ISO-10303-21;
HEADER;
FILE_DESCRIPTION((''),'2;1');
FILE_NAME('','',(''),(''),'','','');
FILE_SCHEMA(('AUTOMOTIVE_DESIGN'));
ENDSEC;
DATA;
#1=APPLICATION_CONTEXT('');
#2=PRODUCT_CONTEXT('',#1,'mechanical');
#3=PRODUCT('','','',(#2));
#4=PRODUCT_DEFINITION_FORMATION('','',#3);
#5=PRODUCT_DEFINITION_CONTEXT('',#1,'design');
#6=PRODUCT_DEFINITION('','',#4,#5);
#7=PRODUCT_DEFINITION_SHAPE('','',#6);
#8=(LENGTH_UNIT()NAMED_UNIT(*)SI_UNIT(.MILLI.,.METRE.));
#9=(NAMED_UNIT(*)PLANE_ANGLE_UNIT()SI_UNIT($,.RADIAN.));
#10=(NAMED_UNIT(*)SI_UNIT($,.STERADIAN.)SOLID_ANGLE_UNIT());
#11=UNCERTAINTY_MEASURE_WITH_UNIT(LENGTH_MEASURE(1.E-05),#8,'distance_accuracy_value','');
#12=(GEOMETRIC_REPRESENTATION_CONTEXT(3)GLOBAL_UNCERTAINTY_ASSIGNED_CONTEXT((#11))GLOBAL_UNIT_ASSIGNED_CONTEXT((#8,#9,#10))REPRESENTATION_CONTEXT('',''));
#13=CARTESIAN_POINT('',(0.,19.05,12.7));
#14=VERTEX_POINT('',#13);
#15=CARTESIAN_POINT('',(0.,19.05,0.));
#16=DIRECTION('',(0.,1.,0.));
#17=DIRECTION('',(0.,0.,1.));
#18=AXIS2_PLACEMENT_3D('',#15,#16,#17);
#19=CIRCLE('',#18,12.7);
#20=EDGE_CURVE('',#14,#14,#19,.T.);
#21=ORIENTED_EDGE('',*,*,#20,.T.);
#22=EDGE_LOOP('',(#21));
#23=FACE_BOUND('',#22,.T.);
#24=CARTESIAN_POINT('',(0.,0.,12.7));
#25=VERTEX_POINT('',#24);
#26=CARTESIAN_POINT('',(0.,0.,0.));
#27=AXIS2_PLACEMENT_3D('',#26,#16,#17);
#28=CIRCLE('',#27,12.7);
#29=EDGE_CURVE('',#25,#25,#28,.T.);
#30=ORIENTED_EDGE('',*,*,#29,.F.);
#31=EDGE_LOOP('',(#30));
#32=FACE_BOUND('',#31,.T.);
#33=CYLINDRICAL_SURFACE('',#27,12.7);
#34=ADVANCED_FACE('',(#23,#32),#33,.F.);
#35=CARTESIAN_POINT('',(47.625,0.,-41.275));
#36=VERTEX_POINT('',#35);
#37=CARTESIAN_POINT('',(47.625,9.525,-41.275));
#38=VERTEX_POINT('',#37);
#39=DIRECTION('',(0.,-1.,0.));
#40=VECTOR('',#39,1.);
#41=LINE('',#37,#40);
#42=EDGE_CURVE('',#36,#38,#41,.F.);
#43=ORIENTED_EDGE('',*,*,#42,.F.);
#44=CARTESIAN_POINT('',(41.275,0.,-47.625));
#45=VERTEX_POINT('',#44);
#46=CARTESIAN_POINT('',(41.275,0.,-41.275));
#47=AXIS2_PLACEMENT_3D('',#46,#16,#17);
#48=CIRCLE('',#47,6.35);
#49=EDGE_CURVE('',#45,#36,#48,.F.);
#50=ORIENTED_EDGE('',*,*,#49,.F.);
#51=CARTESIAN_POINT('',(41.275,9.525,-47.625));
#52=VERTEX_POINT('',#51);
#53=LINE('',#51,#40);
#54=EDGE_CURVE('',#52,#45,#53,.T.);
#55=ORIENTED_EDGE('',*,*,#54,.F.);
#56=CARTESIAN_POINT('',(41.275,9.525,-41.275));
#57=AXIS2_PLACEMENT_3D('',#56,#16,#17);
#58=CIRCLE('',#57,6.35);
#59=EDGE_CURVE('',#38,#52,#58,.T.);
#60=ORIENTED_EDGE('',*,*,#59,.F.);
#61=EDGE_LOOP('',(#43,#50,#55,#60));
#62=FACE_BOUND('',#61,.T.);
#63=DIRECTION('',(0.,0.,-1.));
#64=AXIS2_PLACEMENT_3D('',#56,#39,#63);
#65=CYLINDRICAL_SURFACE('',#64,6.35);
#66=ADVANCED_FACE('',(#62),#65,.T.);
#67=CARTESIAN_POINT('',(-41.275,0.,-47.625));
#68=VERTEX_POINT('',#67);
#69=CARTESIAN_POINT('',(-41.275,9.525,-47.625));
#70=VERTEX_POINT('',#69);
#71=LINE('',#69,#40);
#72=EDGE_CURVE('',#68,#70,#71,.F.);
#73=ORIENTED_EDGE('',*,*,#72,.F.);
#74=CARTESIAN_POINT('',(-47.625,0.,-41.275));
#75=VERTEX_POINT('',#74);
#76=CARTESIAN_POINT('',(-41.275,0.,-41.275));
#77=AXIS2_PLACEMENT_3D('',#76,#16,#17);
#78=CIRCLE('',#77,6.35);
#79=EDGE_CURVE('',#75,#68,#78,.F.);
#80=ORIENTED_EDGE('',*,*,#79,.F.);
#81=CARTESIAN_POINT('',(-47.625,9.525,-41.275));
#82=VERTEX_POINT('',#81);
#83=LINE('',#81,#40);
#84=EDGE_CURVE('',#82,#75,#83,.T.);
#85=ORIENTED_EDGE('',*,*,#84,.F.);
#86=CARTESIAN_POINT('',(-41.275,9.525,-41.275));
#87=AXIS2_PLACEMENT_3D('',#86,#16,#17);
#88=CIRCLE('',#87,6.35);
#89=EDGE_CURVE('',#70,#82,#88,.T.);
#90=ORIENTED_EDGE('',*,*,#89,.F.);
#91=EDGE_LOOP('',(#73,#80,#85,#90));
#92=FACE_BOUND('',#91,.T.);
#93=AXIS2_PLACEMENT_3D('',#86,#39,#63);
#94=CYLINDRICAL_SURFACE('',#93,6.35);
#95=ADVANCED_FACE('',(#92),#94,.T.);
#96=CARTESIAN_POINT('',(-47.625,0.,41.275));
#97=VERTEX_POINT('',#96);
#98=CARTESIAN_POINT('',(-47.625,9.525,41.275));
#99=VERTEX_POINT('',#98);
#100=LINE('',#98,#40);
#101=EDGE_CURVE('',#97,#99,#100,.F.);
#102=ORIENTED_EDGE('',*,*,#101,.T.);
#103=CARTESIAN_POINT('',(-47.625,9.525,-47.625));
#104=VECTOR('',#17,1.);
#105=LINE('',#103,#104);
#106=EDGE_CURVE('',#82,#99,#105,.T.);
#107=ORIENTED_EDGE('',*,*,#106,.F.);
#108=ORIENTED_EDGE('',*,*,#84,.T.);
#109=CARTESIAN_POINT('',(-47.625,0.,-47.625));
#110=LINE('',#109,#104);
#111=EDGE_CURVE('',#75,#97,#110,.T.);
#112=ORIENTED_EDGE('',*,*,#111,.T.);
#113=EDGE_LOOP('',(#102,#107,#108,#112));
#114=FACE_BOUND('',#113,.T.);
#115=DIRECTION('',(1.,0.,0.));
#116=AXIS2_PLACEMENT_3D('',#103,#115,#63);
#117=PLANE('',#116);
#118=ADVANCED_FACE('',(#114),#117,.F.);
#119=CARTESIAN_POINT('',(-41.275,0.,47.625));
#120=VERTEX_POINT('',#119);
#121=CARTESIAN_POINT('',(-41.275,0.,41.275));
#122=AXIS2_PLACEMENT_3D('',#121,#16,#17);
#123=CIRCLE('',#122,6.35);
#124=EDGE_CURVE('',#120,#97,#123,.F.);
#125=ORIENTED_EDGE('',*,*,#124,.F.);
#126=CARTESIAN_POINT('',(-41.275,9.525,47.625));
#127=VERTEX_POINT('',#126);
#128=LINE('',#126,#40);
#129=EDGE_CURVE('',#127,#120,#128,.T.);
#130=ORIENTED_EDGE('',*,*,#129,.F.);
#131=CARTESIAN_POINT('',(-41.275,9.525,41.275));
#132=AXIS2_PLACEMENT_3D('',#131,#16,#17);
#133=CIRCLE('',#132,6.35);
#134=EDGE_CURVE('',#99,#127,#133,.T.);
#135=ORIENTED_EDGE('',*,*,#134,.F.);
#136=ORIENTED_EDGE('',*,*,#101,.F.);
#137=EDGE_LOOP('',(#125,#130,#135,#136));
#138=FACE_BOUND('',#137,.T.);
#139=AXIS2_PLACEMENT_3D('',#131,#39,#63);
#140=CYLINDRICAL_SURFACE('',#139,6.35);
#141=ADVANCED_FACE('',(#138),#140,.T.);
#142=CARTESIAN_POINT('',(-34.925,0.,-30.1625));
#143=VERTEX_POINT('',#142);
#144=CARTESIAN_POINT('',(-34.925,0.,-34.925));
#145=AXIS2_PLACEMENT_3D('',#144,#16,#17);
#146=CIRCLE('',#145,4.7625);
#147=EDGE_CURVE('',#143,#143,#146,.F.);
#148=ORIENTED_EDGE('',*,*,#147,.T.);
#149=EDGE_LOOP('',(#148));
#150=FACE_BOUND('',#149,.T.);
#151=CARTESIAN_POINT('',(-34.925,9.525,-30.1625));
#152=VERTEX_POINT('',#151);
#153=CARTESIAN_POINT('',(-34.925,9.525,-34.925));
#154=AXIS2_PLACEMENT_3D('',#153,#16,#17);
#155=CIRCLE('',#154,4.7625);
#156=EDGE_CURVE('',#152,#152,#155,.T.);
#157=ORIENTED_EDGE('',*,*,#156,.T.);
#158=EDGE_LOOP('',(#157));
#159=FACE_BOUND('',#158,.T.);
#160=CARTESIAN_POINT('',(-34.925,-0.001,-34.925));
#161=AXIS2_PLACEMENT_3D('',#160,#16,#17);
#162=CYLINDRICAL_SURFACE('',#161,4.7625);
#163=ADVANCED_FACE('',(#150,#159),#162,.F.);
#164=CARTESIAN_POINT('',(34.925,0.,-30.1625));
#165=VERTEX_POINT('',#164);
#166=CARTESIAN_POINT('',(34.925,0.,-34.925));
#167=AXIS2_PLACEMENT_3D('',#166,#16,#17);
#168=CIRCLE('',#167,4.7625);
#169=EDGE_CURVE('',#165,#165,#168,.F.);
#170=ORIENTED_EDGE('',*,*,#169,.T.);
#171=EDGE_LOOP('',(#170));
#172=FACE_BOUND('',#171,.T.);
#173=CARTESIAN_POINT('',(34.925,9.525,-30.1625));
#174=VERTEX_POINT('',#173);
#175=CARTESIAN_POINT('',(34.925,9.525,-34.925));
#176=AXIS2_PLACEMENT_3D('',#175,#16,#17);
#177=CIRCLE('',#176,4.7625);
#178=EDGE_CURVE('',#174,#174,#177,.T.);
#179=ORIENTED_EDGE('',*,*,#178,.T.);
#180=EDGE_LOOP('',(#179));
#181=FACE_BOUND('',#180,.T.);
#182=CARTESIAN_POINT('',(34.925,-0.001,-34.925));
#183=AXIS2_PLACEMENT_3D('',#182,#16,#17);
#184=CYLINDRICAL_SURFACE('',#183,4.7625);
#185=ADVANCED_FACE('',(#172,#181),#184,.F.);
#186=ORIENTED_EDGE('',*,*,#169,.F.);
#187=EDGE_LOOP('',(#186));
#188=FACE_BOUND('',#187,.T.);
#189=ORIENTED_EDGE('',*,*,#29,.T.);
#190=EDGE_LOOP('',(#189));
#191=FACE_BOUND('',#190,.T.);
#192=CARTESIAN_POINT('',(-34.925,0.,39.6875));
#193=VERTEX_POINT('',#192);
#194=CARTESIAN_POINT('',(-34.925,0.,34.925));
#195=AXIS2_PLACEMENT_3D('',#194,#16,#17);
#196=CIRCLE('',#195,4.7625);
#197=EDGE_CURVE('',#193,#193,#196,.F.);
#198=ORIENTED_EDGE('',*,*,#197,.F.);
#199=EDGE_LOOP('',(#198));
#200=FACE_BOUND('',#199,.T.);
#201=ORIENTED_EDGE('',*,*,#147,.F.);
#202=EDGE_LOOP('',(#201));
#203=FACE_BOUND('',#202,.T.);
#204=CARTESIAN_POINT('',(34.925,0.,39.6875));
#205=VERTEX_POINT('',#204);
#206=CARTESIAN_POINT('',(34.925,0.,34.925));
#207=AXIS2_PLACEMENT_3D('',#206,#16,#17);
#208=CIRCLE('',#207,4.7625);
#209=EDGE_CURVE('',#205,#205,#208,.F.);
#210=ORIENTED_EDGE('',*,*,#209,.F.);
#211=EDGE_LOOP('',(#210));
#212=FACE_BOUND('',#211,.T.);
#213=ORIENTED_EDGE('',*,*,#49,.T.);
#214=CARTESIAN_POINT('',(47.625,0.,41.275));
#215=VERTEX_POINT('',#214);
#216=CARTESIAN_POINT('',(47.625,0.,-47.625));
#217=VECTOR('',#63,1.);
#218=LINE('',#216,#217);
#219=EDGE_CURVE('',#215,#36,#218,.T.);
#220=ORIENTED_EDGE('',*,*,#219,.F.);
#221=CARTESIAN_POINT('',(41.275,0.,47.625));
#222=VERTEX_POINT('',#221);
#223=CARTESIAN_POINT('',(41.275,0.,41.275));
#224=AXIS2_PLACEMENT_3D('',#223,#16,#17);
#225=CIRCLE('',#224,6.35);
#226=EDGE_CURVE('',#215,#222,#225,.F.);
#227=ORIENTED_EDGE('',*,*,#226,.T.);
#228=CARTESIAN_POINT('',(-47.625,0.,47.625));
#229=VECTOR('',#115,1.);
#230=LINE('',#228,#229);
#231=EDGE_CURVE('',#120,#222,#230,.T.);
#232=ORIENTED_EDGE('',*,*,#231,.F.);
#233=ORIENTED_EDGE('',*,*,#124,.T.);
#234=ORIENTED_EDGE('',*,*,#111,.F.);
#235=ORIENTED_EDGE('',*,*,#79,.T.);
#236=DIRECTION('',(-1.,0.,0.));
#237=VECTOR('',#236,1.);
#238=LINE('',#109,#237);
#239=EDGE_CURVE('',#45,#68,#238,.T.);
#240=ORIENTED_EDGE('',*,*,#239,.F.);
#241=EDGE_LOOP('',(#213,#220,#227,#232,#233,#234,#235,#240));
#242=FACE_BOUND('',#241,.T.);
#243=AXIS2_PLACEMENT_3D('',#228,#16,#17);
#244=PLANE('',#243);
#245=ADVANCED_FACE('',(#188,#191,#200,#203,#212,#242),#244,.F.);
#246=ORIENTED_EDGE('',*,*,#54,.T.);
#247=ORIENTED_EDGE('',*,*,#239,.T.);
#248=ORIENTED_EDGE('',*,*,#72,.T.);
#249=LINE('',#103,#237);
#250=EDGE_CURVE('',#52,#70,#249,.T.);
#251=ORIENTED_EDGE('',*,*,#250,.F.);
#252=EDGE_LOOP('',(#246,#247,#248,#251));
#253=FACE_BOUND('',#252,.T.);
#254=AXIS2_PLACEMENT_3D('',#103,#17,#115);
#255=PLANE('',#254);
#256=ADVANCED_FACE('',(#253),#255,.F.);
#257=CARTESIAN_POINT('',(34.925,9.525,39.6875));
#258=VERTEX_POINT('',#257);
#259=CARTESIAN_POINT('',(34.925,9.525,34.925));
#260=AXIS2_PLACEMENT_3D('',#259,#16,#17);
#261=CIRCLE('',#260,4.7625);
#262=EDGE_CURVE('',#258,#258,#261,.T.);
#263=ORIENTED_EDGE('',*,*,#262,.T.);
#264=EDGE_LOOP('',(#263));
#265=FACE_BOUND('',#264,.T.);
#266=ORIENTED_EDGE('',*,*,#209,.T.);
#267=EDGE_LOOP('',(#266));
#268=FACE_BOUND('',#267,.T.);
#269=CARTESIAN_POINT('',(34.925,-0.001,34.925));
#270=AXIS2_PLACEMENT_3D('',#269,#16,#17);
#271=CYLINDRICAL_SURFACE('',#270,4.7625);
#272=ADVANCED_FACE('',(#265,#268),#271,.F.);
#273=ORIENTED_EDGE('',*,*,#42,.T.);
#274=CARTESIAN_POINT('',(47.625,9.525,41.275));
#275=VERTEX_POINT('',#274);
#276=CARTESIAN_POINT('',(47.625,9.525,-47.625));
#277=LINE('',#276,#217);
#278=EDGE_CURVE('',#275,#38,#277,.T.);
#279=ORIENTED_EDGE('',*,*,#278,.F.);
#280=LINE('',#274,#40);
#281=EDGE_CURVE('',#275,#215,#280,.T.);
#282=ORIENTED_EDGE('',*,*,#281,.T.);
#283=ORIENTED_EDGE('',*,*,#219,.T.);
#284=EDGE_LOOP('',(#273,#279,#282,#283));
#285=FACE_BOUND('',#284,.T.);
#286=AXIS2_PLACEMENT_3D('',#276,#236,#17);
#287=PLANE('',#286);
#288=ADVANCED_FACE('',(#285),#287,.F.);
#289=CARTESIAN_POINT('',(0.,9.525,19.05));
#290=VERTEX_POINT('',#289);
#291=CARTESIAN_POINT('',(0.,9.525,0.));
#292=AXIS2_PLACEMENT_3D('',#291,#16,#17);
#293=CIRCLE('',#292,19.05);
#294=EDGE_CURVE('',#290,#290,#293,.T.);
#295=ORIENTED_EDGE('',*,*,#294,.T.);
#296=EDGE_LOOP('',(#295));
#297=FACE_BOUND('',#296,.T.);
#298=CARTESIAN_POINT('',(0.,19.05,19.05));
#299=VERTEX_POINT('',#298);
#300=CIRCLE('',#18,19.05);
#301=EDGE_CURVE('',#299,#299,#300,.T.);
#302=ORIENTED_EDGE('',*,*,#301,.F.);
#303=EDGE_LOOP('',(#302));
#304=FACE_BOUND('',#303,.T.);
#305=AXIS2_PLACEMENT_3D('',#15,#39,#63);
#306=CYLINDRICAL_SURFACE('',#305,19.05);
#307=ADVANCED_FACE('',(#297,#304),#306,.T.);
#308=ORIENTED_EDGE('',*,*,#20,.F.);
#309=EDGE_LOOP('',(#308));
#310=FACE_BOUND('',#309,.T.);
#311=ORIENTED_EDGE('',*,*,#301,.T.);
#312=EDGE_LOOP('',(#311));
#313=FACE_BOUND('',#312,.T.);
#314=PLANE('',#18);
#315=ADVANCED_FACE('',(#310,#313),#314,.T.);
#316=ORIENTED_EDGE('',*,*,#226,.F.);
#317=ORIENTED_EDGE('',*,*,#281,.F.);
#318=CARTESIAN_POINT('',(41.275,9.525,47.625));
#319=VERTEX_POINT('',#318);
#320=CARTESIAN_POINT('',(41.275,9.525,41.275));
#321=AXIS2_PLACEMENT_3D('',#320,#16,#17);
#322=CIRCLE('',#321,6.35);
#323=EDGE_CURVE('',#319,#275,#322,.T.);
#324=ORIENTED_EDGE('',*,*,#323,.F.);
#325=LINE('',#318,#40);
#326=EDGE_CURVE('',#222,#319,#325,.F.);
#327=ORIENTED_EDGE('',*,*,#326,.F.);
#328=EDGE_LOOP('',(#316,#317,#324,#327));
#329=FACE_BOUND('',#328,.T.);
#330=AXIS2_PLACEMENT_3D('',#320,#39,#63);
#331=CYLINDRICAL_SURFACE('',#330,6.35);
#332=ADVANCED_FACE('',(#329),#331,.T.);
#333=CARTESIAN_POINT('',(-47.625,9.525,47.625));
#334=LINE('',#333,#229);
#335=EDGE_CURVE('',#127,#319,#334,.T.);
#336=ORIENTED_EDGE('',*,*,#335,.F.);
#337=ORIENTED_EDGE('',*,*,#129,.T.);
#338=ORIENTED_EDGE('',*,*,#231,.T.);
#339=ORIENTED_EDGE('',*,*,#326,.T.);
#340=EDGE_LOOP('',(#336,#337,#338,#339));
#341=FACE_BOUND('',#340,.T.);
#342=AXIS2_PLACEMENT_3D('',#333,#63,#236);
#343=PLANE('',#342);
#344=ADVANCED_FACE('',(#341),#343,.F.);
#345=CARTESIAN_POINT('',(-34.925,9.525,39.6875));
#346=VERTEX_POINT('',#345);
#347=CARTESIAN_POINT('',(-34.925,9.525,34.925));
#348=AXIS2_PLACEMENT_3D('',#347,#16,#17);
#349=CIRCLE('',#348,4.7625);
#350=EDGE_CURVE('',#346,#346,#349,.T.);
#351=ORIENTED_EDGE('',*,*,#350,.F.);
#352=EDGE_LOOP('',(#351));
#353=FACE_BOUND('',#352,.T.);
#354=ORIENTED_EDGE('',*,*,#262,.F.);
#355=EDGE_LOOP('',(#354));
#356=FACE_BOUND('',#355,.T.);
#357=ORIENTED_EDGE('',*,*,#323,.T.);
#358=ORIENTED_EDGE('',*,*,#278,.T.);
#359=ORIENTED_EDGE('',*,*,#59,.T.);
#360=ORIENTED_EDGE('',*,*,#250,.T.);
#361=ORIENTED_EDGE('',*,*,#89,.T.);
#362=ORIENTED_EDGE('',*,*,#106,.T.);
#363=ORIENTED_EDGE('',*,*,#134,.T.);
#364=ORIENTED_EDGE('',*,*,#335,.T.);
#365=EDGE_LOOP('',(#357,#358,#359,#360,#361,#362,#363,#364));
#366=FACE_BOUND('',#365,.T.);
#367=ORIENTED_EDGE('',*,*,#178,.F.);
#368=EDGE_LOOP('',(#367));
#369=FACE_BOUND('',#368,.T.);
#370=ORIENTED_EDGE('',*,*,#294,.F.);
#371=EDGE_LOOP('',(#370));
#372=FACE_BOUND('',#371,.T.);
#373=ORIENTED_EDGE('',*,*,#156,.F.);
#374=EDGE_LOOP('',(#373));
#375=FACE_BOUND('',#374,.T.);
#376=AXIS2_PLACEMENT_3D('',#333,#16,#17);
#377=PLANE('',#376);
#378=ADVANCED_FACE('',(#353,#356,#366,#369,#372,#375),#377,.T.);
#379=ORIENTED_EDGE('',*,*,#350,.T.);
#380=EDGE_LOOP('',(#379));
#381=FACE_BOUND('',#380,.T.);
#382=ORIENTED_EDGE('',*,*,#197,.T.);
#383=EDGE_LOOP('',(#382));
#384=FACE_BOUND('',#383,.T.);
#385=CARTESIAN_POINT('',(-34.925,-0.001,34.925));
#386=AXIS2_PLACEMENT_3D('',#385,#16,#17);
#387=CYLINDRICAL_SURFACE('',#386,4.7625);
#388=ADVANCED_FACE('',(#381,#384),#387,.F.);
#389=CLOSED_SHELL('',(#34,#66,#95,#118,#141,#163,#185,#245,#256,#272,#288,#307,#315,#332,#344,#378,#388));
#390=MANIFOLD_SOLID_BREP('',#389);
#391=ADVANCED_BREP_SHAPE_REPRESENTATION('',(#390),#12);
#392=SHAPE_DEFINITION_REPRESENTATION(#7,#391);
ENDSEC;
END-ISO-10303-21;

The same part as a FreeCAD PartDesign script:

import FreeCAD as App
import Part
import Sketcher
from FreeCAD import Vector
Q = App.Units.Quantity


def edges_at(feature, points):
    """Names of the edges that pass closest to the given points."""
    edges = feature.Shape.Edges
    near = lambda p: min(range(len(edges)), key=lambda i: edges[i].distToShape(Part.Vertex(*p))[0])
    return sorted({f"Edge{near(p) + 1}" for p in points})

doc = App.newDocument("Part")
params = doc.addObject("Spreadsheet::Sheet", "Params")
for row, (alias, value) in enumerate([
    ("sketch1_width", "3.75 in"),
    ("pad1_length", "0.375 in"),
    ("sketch2_diameter", "1.5 in"),
    ("pad2_length", "0.375 in"),
    ("sketch3_diameter", "1 in"),
    ("fillet_radius", "0.25 in"),
    ("sketch4_diameter", "0.375 in"),
    ("sketch5_diameter", "0.375 in"),
    ("sketch6_diameter", "0.375 in"),
    ("sketch7_diameter", "0.375 in"),
], start=1):
    params.set(f"A{row}", alias)
    params.set(f"B{row}", "=" + value)
    params.setAlias(f"B{row}", alias)

body = doc.addObject("PartDesign::Body", "Body")

# Sketch on XZ plane
sketch1 = doc.addObject("Sketcher::SketchObject", "Sketch")
body.addObject(sketch1)
sketch1.AttachmentSupport = (doc.XZ_Plane, [""])
sketch1.MapMode = "FlatFace"
sketch1.addGeometry(Part.LineSegment(Vector(-48, -48, 0), Vector(-48, 48, 0)), False)
sketch1.addGeometry(Part.LineSegment(Vector(-48, 48, 0), Vector(48, 48, 0)), False)
sketch1.addGeometry(Part.LineSegment(Vector(48, 48, 0), Vector(48, -48, 0)), False)
sketch1.addGeometry(Part.LineSegment(Vector(48, -48, 0), Vector(-48, -48, 0)), False)
sketch1.addConstraint(Sketcher.Constraint("Coincident", 0, 2, 1, 1))
sketch1.addConstraint(Sketcher.Constraint("Coincident", 1, 2, 2, 1))
sketch1.addConstraint(Sketcher.Constraint("Coincident", 2, 2, 3, 1))
sketch1.addConstraint(Sketcher.Constraint("Coincident", 3, 2, 0, 1))
sketch1.addConstraint(Sketcher.Constraint("Vertical", 0))
sketch1.addConstraint(Sketcher.Constraint("Horizontal", 1))
sketch1.addConstraint(Sketcher.Constraint("Vertical", 2))
sketch1.addConstraint(Sketcher.Constraint("Horizontal", 3))
sketch1.addConstraint(Sketcher.Constraint("Symmetric", 0, 2, 2, 2, -1, 1))
sketch1.addConstraint(Sketcher.Constraint("Equal", 3, 0))
sketch1.addConstraint(Sketcher.Constraint("DistanceX", 1, 1, 1, 2, Q("3.75 in")))
sketch1.setExpression("Constraints[10]", "Params.sketch1_width")
pad1 = doc.addObject("PartDesign::Pad", "Pad")
body.addObject(pad1)
pad1.Profile = sketch1
pad1.setExpression("Length", "Params.pad1_length")
pad1.Reversed = True

# Sketch on XZ plane
sketch2 = doc.addObject("Sketcher::SketchObject", "Sketch001")
body.addObject(sketch2)
sketch2.AttachmentSupport = (doc.XZ_Plane, [""])
sketch2.MapMode = "FlatFace"
sketch2.AttachmentOffset = App.Placement(Vector(0, 0, -0.375 * 25.4), App.Rotation())
sketch2.addGeometry(Part.Circle(Vector(0, 0, 0), Vector(0, 0, 1), 19), False)
sketch2.addConstraint(Sketcher.Constraint("Coincident", 0, 3, -1, 1))
sketch2.addConstraint(Sketcher.Constraint("Diameter", 0, Q("1.5 in")))
sketch2.setExpression("Constraints[1]", "Params.sketch2_diameter")
pad2 = doc.addObject("PartDesign::Pad", "Pad001")
body.addObject(pad2)
pad2.Profile = sketch2
pad2.setExpression("Length", "Params.pad2_length")
pad2.Reversed = True

# Sketch on XZ plane
sketch3 = doc.addObject("Sketcher::SketchObject", "Sketch002")
body.addObject(sketch3)
sketch3.AttachmentSupport = (doc.XZ_Plane, [""])
sketch3.MapMode = "FlatFace"
sketch3.AttachmentOffset = App.Placement(Vector(0, 0, -0.75 * 25.4), App.Rotation())
sketch3.addGeometry(Part.Circle(Vector(0, 0, 0), Vector(0, 0, 1), 13), False)
sketch3.addConstraint(Sketcher.Constraint("Coincident", 0, 3, -1, 1))
sketch3.addConstraint(Sketcher.Constraint("Diameter", 0, Q("1 in")))
sketch3.setExpression("Constraints[1]", "Params.sketch3_diameter")
pocket1 = doc.addObject("PartDesign::Pocket", "Pocket")
body.addObject(pocket1)
pocket1.Profile = sketch3
pocket1.Type = "ThroughAll"
pocket1.Reversed = True
doc.recompute()

fillet = doc.addObject("PartDesign::Fillet", "Fillet")
body.addObject(fillet)
fillet.Base = (pocket1, edges_at(pocket1, [
    (-47.625, 4.763, -47.625),
    (47.625, 4.763, -47.625),
    (47.625, 4.763, 47.625),
    (-47.625, 4.763, 47.625),
]))
fillet.setExpression("Radius", "Params.fillet_radius")

# Sketch on XZ plane
sketch4 = doc.addObject("Sketcher::SketchObject", "Sketch003")
body.addObject(sketch4)
sketch4.AttachmentSupport = (doc.XZ_Plane, [""])
sketch4.MapMode = "FlatFace"
sketch4.AttachmentOffset = App.Placement(Vector(0, 0, -0.375 * 25.4), App.Rotation())
sketch4.addGeometry(Part.Circle(Vector(34.9, -34.9, 0), Vector(0, 0, 1), 4.8), False)
sketch4.addConstraint(Sketcher.Constraint("Diameter", 0, Q("0.375 in")))
sketch4.addConstraint(Sketcher.Constraint("DistanceX", -1, 1, 0, 3, Q("1.375 in")))
sketch4.addConstraint(Sketcher.Constraint("DistanceY", 0, 3, -1, 1, Q("1.375 in")))
sketch4.setExpression("Constraints[0]", "Params.sketch4_diameter")
pocket2 = doc.addObject("PartDesign::Pocket", "Pocket001")
body.addObject(pocket2)
pocket2.Profile = sketch4
pocket2.Type = "UpToFirst"
pocket2.Reversed = True

# Sketch on XZ plane
sketch5 = doc.addObject("Sketcher::SketchObject", "Sketch004")
body.addObject(sketch5)
sketch5.AttachmentSupport = (doc.XZ_Plane, [""])
sketch5.MapMode = "FlatFace"
sketch5.AttachmentOffset = App.Placement(Vector(0, 0, -0.375 * 25.4), App.Rotation())
sketch5.addGeometry(Part.Circle(Vector(-34.9, -34.9, 0), Vector(0, 0, 1), 4.8), False)
sketch5.addConstraint(Sketcher.Constraint("Diameter", 0, Q("0.375 in")))
sketch5.addConstraint(Sketcher.Constraint("DistanceX", 0, 3, -1, 1, Q("1.375 in")))
sketch5.addConstraint(Sketcher.Constraint("DistanceY", 0, 3, -1, 1, Q("1.375 in")))
sketch5.setExpression("Constraints[0]", "Params.sketch5_diameter")
pocket3 = doc.addObject("PartDesign::Pocket", "Pocket002")
body.addObject(pocket3)
pocket3.Profile = sketch5
pocket3.Type = "UpToFirst"
pocket3.Reversed = True

# Sketch on XZ plane
sketch6 = doc.addObject("Sketcher::SketchObject", "Sketch005")
body.addObject(sketch6)
sketch6.AttachmentSupport = (doc.XZ_Plane, [""])
sketch6.MapMode = "FlatFace"
sketch6.AttachmentOffset = App.Placement(Vector(0, 0, -0.375 * 25.4), App.Rotation())
sketch6.addGeometry(Part.Circle(Vector(-34.9, 34.9, 0), Vector(0, 0, 1), 4.8), False)
sketch6.addConstraint(Sketcher.Constraint("Diameter", 0, Q("0.375 in")))
sketch6.addConstraint(Sketcher.Constraint("DistanceX", 0, 3, -1, 1, Q("1.375 in")))
sketch6.addConstraint(Sketcher.Constraint("DistanceY", -1, 1, 0, 3, Q("1.375 in")))
sketch6.setExpression("Constraints[0]", "Params.sketch6_diameter")
pocket4 = doc.addObject("PartDesign::Pocket", "Pocket003")
body.addObject(pocket4)
pocket4.Profile = sketch6
pocket4.Type = "UpToFirst"
pocket4.Reversed = True

# Sketch on XZ plane
sketch7 = doc.addObject("Sketcher::SketchObject", "Sketch006")
body.addObject(sketch7)
sketch7.AttachmentSupport = (doc.XZ_Plane, [""])
sketch7.MapMode = "FlatFace"
sketch7.AttachmentOffset = App.Placement(Vector(0, 0, -0.375 * 25.4), App.Rotation())
sketch7.addGeometry(Part.Circle(Vector(34.9, 34.9, 0), Vector(0, 0, 1), 4.8), False)
sketch7.addConstraint(Sketcher.Constraint("Diameter", 0, Q("0.375 in")))
sketch7.addConstraint(Sketcher.Constraint("DistanceX", -1, 1, 0, 3, Q("1.375 in")))
sketch7.addConstraint(Sketcher.Constraint("DistanceY", -1, 1, 0, 3, Q("1.375 in")))
sketch7.setExpression("Constraints[0]", "Params.sketch7_diameter")
pocket5 = doc.addObject("PartDesign::Pocket", "Pocket004")
body.addObject(pocket5)
pocket5.Profile = sketch7
pocket5.Type = "UpToFirst"
pocket5.Reversed = True

doc.recompute()
